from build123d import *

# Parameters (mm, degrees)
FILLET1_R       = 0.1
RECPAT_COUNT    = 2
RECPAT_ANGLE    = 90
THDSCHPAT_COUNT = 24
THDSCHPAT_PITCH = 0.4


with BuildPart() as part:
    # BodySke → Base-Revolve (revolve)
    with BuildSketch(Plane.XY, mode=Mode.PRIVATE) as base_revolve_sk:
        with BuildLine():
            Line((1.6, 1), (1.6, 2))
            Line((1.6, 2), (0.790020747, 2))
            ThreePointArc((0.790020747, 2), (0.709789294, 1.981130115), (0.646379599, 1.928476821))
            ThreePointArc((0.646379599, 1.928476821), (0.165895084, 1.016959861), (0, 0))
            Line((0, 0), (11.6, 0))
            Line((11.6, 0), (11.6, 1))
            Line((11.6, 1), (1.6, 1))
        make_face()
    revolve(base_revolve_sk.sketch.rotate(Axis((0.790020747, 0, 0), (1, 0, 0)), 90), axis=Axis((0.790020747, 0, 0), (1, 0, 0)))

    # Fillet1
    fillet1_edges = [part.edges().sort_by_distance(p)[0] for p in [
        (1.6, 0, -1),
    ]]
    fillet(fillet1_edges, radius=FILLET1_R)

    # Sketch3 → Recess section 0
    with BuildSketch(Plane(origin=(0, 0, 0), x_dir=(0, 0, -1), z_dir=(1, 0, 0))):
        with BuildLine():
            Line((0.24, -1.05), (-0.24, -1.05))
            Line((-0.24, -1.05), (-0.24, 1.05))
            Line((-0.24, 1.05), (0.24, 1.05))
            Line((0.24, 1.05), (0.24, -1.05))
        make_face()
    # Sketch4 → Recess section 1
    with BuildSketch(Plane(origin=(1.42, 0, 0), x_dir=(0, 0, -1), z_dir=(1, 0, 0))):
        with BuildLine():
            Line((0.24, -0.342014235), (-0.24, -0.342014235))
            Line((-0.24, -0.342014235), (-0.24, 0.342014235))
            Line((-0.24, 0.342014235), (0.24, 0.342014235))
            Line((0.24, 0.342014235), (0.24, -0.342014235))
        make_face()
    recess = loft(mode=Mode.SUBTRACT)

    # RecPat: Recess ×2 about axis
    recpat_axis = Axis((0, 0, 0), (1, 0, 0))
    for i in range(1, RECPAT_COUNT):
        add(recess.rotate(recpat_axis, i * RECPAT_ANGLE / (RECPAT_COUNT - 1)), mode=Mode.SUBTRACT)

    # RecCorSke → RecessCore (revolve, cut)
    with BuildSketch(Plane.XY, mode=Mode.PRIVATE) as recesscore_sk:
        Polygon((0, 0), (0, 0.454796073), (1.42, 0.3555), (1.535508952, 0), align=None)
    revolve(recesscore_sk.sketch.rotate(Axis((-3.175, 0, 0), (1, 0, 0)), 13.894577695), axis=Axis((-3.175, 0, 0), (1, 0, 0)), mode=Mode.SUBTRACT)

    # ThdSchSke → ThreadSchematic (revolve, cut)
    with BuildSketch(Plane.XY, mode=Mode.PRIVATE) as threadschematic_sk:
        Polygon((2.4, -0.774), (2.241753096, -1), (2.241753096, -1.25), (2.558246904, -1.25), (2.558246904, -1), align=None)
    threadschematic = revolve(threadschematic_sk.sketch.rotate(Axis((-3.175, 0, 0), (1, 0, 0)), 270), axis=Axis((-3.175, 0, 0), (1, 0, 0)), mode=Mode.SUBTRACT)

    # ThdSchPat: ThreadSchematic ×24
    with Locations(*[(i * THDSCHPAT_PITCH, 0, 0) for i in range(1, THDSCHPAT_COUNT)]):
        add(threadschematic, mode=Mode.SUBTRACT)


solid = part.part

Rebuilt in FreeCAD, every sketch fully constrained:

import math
import FreeCAD as App
import Part
import Sketcher
from FreeCAD import Vector
Q = App.Units.Quantity


def edges_at(feature, points):
    """Names of the edges that pass closest to the given points."""
    edges = feature.Shape.Edges
    near = lambda p: min(range(len(edges)), key=lambda i: edges[i].distToShape(Part.Vertex(*p))[0])
    return sorted({f"Edge{near(p) + 1}" for p in points})


def add_polygon(sketch, points):
    """Adds a closed chain of lines whose ends are joined by coincident constraints."""
    first, n = sketch.GeometryCount, len(points)
    for a, b in zip(points, points[1:] + points[:1]):
        sketch.addGeometry(Part.LineSegment(App.Vector(*a, 0), App.Vector(*b, 0)), False)
    for i in range(n):
        sketch.addConstraint(Sketcher.Constraint("Coincident", first + i, 2, first + (i + 1) % n, 1))

doc = App.newDocument("Part")
body = doc.addObject("PartDesign::Body", "Body")

sketch1 = body.newObject("Sketcher::SketchObject", "Sketch")
sketch1.AttachmentSupport = (doc.getObject("XY_Plane"), [""])
sketch1.MapMode = "FlatFace"
sketch1.addGeometry(Part.LineSegment(Vector(1.6, 1, 0), Vector(1.6, 2, 0)), False)
sketch1.addGeometry(Part.LineSegment(Vector(1.6, 2, 0), Vector(0.79, 2, 0)), False)
sketch1.addGeometry(Part.ArcOfCircle(Part.Circle(Vector(0.79, 1.82, 0), Vector(0, 0, 1), 0.18), math.radians(90), math.radians(143)), False)
sketch1.addGeometry(Part.ArcOfCircle(Part.Circle(Vector(3.2, 0, 0), Vector(0, 0, 1), 3.2), math.radians(143), math.radians(180)), False)
sketch1.addGeometry(Part.LineSegment(Vector(0, 0, 0), Vector(11.6, 0, 0)), False)
sketch1.addGeometry(Part.LineSegment(Vector(11.6, 0, 0), Vector(11.6, 1, 0)), False)
sketch1.addGeometry(Part.LineSegment(Vector(11.6, 1, 0), Vector(1.6, 1, 0)), False)
sketch1.addConstraint(Sketcher.Constraint("Coincident", 0, 2, 1, 1))
sketch1.addConstraint(Sketcher.Constraint("Tangent", 1, 2, 2, 1))
sketch1.addConstraint(Sketcher.Constraint("Tangent", 2, 2, 3, 1))
sketch1.addConstraint(Sketcher.Constraint("Coincident", 3, 2, 4, 1))
sketch1.addConstraint(Sketcher.Constraint("Coincident", 4, 2, 5, 1))
sketch1.addConstraint(Sketcher.Constraint("Coincident", 5, 2, 6, 1))
sketch1.addConstraint(Sketcher.Constraint("Coincident", 6, 2, 0, 1))
sketch1.addConstraint(Sketcher.Constraint("Vertical", 0))
sketch1.addConstraint(Sketcher.Constraint("Horizontal", 1))
sketch1.addConstraint(Sketcher.Constraint("Horizontal", 4))
sketch1.addConstraint(Sketcher.Constraint("Vertical", 5))
sketch1.addConstraint(Sketcher.Constraint("Horizontal", 6))
sketch1.addConstraint(Sketcher.Constraint("Coincident", 3, 2, -1, 1))
sketch1.addConstraint(Sketcher.Constraint("PointOnObject", 3, 3, -1))
sketch1.addConstraint(Sketcher.Constraint("Equal", 0, 5))
sketch1.addConstraint(Sketcher.Constraint("Radius", 3, 3.2))
sketch1.addConstraint(Sketcher.Constraint("DistanceX", 6, 2, 6, 1, 10.0))
sketch1.addConstraint(Sketcher.Constraint("DistanceY", 0, 1, 0, 2, 1.0))
sketch1.addConstraint(Sketcher.Constraint("Radius", 2, 0.18))
sketch1.addConstraint(Sketcher.Constraint("DistanceX", 4, 1, 4, 2, 11.6))
revolution = body.newObject("PartDesign::Revolution", "Revolution")
revolution.Profile = sketch1
revolution.ReferenceAxis = (sketch1, ["H_Axis"])
revolution.Angle = 360
doc.recompute()

fillet = body.newObject("PartDesign::Fillet", "Fillet")
fillet.Base = (revolution, edges_at(revolution, [(1.6, 0, -1)]))
fillet.Radius = 0.1

sketch2 = body.newObject("Sketcher::SketchObject", "Sketch001")
sketch2.AttachmentSupport = (doc.getObject("YZ_Plane"), [""])
sketch2.MapMode = "FlatFace"
add_polygon(sketch2, [(-1.05, 0.24), (-1.05, -0.24), (1.05, -0.24), (1.05, 0.24)])
sketch2.addConstraint(Sketcher.Constraint("Vertical", 0))
sketch2.addConstraint(Sketcher.Constraint("Horizontal", 1))
sketch2.addConstraint(Sketcher.Constraint("Vertical", 2))
sketch2.addConstraint(Sketcher.Constraint("Horizontal", 3))
sketch2.addConstraint(Sketcher.Constraint("Symmetric", 0, 2, 2, 2, -1, 1))
sketch2.addConstraint(Sketcher.Constraint("DistanceX", 1, 1, 1, 2, 2.1))
sketch2.addConstraint(Sketcher.Constraint("DistanceY", 0, 2, 0, 1, 0.48))

sketch3 = body.newObject("Sketcher::SketchObject", "Sketch002")
sketch3.AttachmentSupport = (doc.getObject("YZ_Plane"), [""])
sketch3.MapMode = "FlatFace"
sketch3.AttachmentOffset = App.Placement(Vector(0, 0, 1.42), App.Rotation())
add_polygon(sketch3, [(-0.34, 0.24), (-0.34, -0.24), (0.34, -0.24), (0.34, 0.24)])
sketch3.addConstraint(Sketcher.Constraint("Vertical", 0))
sketch3.addConstraint(Sketcher.Constraint("Horizontal", 1))
sketch3.addConstraint(Sketcher.Constraint("Vertical", 2))
sketch3.addConstraint(Sketcher.Constraint("Horizontal", 3))
sketch3.addConstraint(Sketcher.Constraint("Symmetric", 0, 2, 2, 2, -1, 1))
sketch3.addConstraint(Sketcher.Constraint("DistanceY", 0, 2, 0, 1, 0.48))
sketch3.addConstraint(Sketcher.Constraint("DistanceX", 1, 1, 1, 2, 0.684028))

subtractiveloft = body.newObject("PartDesign::SubtractiveLoft", "SubtractiveLoft")
subtractiveloft.Profile = sketch2
subtractiveloft.Sections = [sketch3]
doc.recompute()

polarpattern = body.newObject("PartDesign::PolarPattern", "PolarPattern")
polarpattern.Originals = [subtractiveloft]
polarpattern.Axis = (doc.getObject("X_Axis"), [""])
polarpattern.Angle = 90
polarpattern.Occurrences = 2
body.Tip = polarpattern

sketch4 = body.newObject("Sketcher::SketchObject", "Sketch003")
sketch4.AttachmentSupport = (doc.getObject("XY_Plane"), [""])
sketch4.MapMode = "FlatFace"
add_polygon(sketch4, [(0, 0.45), (0, 0), (1.54, 0), (1.42, 0.36)])
sketch4.addConstraint(Sketcher.Constraint("Vertical", 0))
sketch4.addConstraint(Sketcher.Constraint("Horizontal", 1))
sketch4.addConstraint(Sketcher.Constraint("Coincident", 0, 2, -1, 1))
sketch4.addConstraint(Sketcher.Constraint("Angle", 2, Q("108 deg")))
sketch4.addConstraint(Sketcher.Constraint("Angle", 3, Q("176 deg")))
sketch4.addConstraint(Sketcher.Constraint("DistanceX", -1, 1, 2, 2, 1.42))
sketch4.addConstraint(Sketcher.Constraint("DistanceX", 1, 1, 1, 2, 1.535509))
groove = body.newObject("PartDesign::Groove", "Groove")
groove.Profile = sketch4
groove.ReferenceAxis = (sketch4, ["H_Axis"])
groove.Angle = 360

sketch5 = body.newObject("Sketcher::SketchObject", "Sketch004")
sketch5.AttachmentSupport = (doc.getObject("XY_Plane"), [""])
sketch5.MapMode = "FlatFace"
add_polygon(sketch5, [(2.4, -0.77), (2.24, -1), (2.24, -1.25), (2.56, -1.25), (2.56, -1)])
sketch5.addConstraint(Sketcher.Constraint("Vertical", 1))
sketch5.addConstraint(Sketcher.Constraint("Horizontal", 2))
sketch5.addConstraint(Sketcher.Constraint("Vertical", 3))
sketch5.addConstraint(Sketcher.Constraint("Horizontal", 0, 2, 3, 2))
sketch5.addConstraint(Sketcher.Constraint("Equal", 0, 4))
sketch5.addConstraint(Sketcher.Constraint("Angle", 0, Q("-125 deg")))
sketch5.addConstraint(Sketcher.Constraint("DistanceY", 0, 2, -1, 1, 1.0))
sketch5.addConstraint(Sketcher.Constraint("DistanceY", 1, 2, 1, 1, 0.25))
sketch5.addConstraint(Sketcher.Constraint("DistanceX", -1, 1, 4, 2, 2.4))
sketch5.addConstraint(Sketcher.Constraint("DistanceY", 4, 2, -1, 1, 0.774))
groove2 = body.newObject("PartDesign::Groove", "Groove001")
groove2.Profile = sketch5
groove2.ReferenceAxis = (sketch5, ["H_Axis"])
groove2.Angle = 360
doc.recompute()

linearpattern = body.newObject("PartDesign::LinearPattern", "LinearPattern")
linearpattern.Originals = [groove2]
linearpattern.Direction = (doc.getObject("X_Axis"), [""])
linearpattern.Mode = "offset"
linearpattern.Offset = 0.4
linearpattern.Occurrences = 24
body.Tip = linearpattern

doc.recompute()
